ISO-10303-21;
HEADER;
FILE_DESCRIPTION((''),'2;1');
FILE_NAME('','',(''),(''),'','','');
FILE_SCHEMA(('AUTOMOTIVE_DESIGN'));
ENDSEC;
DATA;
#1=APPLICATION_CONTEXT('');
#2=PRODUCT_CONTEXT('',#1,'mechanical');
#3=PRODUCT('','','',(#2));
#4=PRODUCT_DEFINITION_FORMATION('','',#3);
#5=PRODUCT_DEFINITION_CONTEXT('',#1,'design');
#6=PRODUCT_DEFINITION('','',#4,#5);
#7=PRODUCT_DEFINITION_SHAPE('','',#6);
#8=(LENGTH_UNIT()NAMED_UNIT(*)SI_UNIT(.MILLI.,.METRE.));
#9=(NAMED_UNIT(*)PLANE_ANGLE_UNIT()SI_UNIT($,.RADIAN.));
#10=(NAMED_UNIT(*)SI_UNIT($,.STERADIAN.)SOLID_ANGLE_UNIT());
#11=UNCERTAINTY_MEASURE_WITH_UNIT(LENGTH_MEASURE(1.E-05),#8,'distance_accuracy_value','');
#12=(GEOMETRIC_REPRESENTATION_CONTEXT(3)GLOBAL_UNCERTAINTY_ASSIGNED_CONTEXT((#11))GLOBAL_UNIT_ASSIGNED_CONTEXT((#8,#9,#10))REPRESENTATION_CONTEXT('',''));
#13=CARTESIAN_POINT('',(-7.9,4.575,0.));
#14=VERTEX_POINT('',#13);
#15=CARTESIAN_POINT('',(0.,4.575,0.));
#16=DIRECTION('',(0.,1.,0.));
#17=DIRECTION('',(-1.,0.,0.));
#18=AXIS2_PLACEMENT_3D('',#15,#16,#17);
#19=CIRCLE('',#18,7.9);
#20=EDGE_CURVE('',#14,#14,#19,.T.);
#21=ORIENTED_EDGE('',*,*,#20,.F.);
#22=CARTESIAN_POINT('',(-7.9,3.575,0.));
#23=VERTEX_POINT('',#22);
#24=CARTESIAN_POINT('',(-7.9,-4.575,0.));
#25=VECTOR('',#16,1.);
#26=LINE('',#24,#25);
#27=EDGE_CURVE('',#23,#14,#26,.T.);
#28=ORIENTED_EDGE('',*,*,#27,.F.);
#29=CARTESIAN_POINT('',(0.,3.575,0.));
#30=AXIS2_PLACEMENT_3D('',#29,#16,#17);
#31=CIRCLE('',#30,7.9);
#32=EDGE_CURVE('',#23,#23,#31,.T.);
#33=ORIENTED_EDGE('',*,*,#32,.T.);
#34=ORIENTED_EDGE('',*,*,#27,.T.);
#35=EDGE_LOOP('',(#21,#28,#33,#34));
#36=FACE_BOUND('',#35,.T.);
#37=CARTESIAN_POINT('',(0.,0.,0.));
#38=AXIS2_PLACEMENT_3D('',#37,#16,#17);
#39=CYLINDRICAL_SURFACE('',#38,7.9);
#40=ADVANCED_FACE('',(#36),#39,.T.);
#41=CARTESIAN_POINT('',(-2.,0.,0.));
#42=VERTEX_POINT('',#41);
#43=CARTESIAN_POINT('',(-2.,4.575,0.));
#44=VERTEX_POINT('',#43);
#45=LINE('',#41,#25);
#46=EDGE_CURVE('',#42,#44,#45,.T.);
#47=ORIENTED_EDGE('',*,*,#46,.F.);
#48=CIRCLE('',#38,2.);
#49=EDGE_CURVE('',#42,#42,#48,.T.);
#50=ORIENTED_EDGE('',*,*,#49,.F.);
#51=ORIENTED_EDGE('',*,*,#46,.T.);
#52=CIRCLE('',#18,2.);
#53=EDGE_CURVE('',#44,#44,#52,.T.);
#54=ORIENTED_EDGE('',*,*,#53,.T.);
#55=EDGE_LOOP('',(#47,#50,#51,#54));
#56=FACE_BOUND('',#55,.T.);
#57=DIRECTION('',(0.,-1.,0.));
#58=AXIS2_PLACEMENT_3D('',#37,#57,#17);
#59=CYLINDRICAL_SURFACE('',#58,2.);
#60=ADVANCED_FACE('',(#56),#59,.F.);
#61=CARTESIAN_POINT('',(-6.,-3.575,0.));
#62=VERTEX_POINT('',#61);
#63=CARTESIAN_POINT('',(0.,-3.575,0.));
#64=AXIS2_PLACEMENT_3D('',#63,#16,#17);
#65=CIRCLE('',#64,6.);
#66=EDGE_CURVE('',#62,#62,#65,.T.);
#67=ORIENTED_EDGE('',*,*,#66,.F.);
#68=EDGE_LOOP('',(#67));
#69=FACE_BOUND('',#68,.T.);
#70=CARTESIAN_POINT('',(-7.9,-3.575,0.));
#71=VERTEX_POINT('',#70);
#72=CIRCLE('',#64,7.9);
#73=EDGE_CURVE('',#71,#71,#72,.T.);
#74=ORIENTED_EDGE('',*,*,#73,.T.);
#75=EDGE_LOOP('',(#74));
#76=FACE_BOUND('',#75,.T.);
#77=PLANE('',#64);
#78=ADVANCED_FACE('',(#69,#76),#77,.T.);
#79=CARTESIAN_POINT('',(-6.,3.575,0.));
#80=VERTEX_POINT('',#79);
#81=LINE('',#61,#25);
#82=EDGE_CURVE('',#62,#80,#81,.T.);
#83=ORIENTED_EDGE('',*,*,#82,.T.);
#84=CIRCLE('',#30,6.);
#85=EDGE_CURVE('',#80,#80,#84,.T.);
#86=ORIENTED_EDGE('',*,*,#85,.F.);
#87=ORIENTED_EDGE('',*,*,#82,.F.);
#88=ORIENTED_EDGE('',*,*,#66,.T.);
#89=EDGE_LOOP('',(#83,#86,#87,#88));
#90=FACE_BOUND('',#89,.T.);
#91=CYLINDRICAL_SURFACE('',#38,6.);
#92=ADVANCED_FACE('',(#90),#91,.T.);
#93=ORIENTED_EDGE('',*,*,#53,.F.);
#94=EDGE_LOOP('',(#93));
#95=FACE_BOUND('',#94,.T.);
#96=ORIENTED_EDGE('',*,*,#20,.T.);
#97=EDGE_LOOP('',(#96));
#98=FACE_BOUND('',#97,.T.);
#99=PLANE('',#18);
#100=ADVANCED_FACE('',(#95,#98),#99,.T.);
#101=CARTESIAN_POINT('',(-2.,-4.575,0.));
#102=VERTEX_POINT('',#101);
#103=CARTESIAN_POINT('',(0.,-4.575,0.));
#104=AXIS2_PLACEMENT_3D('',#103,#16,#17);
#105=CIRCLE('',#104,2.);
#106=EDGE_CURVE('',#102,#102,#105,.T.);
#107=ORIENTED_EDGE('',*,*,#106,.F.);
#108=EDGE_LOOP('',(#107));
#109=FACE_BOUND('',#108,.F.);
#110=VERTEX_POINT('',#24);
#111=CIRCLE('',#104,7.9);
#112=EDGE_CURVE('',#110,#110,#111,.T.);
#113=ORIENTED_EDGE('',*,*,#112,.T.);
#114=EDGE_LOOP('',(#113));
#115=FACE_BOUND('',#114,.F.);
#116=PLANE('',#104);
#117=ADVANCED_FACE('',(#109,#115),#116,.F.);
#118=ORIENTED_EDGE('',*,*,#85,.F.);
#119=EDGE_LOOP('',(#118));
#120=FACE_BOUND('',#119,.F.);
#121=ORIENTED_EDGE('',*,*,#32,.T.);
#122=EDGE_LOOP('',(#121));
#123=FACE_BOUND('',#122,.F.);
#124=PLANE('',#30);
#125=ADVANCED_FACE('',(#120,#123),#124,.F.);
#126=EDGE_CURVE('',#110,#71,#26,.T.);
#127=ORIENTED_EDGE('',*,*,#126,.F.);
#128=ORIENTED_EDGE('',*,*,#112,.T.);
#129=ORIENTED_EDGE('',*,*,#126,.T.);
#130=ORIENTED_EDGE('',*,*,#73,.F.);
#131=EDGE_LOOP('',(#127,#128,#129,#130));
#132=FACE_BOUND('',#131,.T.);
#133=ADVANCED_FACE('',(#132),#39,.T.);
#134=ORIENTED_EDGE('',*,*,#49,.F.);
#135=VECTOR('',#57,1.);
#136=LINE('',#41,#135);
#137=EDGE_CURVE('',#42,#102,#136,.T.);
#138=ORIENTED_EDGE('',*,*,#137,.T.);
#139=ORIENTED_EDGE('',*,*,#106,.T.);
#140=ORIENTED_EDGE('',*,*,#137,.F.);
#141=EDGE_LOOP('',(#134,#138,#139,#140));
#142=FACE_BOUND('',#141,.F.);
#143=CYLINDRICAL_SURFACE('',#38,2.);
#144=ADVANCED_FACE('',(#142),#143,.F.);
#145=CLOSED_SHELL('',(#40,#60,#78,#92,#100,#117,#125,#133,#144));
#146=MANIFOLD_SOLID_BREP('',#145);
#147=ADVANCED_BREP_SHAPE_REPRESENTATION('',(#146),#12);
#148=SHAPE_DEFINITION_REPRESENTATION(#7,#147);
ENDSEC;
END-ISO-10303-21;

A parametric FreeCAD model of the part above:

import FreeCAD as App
import Part
import Sketcher

doc = App.newDocument("Part")
params = doc.addObject("Spreadsheet::Sheet", "Params")
for row, (alias, value) in enumerate([
    ("sketch1_diameter", "4 mm"),
    ("sketch1_diameter2", "15.8 mm"),
    ("pad1_length", "9.15 mm"),
    ("sketch2_diameter", "12 mm"),
    ("sketch2_diameter2", "15.8 mm"),
    ("pocket1_length", "7.15 mm"),
], start=1):
    params.set(f"A{row}", alias)
    params.set(f"B{row}", "=" + value)
    params.setAlias(f"B{row}", alias)

body = doc.addObject("PartDesign::Body", "Body")

sketch1 = doc.addObject("Sketcher::SketchObject", "Sketch")
body.addObject(sketch1)
sketch1.AttachmentSupport = (doc.XZ_Plane, [""])
sketch1.MapMode = "FlatFace"
sketch1.addGeometry([
    Part.Circle(App.Vector(0, 0, 0), App.Vector(0, 0, 1), 7.9),
    Part.Circle(App.Vector(0, 0, 0), App.Vector(0, 0, 1), 2),
], False)
sketch1.addConstraint([
    Sketcher.Constraint("Coincident", 0, 3, -1, 1),
    Sketcher.Constraint("Coincident", 1, 3, -1, 1),
    Sketcher.Constraint("Diameter", 1, 4.0),
    Sketcher.Constraint("Diameter", 0, 15.8),
])
sketch1.setExpression("Constraints[2]", "Params.sketch1_diameter")
sketch1.setExpression("Constraints[3]", "Params.sketch1_diameter2")
pad1 = doc.addObject("PartDesign::Pad", "Pad")
body.addObject(pad1)
pad1.Profile = sketch1
pad1.setExpression("Length", "Params.pad1_length")
pad1.Midplane = True

sketch2 = doc.addObject("Sketcher::SketchObject", "Sketch001")
body.addObject(sketch2)
sketch2.AttachmentSupport = (doc.XZ_Plane, [""])
sketch2.MapMode = "FlatFace"
sketch2.addGeometry([
    Part.Circle(App.Vector(0, 0, 0), App.Vector(0, 0, 1), 8),
    Part.Circle(App.Vector(0, 0, 0), App.Vector(0, 0, 1), 6),
], False)
sketch2.addConstraint([
    Sketcher.Constraint("Coincident", 0, 3, -1, 1),
    Sketcher.Constraint("Coincident", 1, 3, -1, 1),
    Sketcher.Constraint("Diameter", 1, 12.0),
    Sketcher.Constraint("Diameter", 0, 15.8),
])
sketch2.setExpression("Constraints[2]", "Params.sketch2_diameter")
sketch2.setExpression("Constraints[3]", "Params.sketch2_diameter2")
pocket1 = doc.addObject("PartDesign::Pocket", "Pocket")
body.addObject(pocket1)
pocket1.Profile = sketch2
pocket1.setExpression("Length", "Params.pocket1_length")
pocket1.Midplane = True

doc.recompute()
